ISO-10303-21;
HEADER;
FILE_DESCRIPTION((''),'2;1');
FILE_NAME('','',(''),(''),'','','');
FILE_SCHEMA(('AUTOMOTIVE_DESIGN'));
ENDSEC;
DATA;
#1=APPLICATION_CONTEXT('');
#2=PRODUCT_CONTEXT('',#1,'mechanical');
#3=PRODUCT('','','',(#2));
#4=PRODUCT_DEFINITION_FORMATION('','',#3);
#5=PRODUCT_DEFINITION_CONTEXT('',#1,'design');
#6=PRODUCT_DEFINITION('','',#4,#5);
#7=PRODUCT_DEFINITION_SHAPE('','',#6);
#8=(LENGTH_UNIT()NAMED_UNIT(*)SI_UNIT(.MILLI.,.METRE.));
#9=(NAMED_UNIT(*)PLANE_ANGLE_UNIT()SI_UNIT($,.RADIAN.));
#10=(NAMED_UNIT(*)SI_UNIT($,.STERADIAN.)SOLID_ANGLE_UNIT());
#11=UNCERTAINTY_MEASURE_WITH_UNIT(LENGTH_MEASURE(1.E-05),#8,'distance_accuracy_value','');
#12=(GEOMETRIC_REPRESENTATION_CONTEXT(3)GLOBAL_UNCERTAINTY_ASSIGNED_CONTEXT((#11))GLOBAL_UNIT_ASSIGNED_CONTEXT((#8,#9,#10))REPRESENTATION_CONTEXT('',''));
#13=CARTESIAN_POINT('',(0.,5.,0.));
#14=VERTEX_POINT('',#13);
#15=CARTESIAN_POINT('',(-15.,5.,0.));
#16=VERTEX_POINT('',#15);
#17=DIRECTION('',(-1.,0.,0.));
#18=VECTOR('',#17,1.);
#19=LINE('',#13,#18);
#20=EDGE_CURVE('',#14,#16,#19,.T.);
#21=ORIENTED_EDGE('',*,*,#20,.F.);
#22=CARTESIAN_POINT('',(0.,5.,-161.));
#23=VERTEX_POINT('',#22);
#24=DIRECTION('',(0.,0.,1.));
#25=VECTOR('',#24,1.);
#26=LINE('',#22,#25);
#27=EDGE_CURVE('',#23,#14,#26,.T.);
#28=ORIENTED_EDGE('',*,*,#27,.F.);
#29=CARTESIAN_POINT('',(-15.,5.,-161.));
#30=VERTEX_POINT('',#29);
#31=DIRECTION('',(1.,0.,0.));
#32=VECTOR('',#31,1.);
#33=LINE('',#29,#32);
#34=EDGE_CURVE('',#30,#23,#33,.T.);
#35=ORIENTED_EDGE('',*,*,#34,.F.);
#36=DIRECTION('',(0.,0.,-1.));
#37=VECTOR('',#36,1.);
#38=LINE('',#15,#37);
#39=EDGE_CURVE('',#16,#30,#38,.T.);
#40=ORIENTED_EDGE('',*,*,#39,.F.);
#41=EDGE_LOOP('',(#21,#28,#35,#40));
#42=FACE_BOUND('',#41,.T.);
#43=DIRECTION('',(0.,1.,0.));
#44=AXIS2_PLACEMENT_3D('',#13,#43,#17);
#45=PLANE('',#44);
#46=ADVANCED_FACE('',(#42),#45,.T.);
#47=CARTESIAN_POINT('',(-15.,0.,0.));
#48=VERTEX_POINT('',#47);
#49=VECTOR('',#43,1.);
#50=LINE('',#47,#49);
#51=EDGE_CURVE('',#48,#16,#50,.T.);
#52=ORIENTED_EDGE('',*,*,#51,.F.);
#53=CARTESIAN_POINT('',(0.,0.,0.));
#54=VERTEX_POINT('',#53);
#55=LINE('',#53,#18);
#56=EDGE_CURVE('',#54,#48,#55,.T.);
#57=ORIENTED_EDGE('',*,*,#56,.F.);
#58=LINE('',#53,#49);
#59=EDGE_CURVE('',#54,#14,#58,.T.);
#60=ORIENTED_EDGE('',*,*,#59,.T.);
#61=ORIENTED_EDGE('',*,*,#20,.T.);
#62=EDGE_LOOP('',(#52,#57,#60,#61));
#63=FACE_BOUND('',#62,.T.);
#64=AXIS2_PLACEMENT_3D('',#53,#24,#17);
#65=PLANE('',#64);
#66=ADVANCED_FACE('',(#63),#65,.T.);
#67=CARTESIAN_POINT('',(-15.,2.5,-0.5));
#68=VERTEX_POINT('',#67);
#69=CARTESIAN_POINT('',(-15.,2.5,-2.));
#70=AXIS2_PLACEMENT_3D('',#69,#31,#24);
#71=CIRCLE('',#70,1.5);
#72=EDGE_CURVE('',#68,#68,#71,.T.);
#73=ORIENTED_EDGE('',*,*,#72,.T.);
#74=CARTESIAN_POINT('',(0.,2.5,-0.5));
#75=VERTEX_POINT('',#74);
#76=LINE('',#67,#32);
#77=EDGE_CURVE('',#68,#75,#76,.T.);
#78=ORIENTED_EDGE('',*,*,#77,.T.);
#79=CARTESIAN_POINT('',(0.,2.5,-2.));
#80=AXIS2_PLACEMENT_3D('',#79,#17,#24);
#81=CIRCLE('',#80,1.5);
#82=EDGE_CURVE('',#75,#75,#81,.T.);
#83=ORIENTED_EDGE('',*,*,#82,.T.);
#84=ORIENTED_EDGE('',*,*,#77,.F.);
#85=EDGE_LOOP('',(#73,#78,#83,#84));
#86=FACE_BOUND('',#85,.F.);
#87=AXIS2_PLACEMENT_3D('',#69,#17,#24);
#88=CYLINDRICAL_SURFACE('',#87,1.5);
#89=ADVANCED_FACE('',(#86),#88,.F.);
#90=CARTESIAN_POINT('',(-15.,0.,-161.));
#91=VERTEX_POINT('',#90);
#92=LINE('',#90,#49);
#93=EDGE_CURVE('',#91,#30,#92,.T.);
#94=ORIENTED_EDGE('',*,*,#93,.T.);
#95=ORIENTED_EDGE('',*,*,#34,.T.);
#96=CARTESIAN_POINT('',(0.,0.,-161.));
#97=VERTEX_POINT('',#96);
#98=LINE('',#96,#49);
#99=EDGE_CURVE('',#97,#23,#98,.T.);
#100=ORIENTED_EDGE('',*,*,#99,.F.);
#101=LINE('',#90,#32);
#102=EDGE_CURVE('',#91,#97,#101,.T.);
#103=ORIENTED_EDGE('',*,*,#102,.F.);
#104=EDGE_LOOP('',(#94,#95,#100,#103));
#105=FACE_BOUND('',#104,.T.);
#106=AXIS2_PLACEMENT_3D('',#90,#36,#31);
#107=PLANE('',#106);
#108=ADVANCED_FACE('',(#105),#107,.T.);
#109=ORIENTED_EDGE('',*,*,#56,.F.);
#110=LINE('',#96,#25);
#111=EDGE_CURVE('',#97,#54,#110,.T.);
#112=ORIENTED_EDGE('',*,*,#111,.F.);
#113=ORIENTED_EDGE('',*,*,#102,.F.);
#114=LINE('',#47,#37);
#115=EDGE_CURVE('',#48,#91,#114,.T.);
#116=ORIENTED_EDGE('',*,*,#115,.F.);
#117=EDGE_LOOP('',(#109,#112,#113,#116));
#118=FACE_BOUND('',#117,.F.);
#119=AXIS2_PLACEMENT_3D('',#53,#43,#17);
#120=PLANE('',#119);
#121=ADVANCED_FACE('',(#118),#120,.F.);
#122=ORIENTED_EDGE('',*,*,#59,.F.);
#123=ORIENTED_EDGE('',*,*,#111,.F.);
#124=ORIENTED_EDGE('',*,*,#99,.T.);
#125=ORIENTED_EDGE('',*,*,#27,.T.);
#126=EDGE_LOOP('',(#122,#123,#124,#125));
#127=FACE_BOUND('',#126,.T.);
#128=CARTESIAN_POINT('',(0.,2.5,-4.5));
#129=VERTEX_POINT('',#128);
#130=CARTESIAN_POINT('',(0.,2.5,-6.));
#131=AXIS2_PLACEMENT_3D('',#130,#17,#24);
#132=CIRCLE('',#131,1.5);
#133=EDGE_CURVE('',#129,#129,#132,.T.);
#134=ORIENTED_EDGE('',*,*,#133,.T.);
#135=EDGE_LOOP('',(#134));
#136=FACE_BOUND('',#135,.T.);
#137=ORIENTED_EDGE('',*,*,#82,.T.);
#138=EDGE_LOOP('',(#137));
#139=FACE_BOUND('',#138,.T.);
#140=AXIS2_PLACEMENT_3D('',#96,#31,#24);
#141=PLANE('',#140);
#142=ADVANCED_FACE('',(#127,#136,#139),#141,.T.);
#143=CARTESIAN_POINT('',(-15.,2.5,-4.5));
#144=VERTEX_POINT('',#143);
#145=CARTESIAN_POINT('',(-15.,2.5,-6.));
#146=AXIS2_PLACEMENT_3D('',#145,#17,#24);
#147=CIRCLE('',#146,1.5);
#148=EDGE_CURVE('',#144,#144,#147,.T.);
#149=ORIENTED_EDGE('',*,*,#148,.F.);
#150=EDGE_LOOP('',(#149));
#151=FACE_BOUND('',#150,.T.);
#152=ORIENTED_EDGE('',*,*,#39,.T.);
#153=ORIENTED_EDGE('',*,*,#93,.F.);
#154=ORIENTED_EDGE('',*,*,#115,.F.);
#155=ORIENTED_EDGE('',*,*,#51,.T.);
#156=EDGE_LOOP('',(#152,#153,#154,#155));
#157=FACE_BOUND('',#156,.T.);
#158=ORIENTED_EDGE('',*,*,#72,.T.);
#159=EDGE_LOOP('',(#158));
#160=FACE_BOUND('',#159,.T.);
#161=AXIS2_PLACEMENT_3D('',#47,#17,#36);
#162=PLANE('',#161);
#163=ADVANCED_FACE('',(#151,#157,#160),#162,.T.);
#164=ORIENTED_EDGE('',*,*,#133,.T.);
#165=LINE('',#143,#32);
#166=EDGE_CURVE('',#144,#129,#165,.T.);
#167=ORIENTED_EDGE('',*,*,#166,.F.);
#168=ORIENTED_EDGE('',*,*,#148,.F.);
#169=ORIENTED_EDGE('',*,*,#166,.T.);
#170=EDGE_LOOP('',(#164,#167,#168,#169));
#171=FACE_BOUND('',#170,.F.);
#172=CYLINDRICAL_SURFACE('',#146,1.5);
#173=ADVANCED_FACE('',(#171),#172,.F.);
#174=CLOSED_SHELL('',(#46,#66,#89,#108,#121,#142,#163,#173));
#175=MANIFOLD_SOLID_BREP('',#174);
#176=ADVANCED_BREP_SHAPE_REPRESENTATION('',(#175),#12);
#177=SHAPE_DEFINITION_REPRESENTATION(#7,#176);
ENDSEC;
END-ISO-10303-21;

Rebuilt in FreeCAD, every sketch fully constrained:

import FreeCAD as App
import Part
import Sketcher
from FreeCAD import Vector

doc = App.newDocument("Part")
body = doc.addObject("PartDesign::Body", "Body")

# Sketch on XZ plane
sketch1 = body.newObject("Sketcher::SketchObject", "Sketch")
sketch1.AttachmentSupport = (doc.getObject("XZ_Plane"), [""])
sketch1.MapMode = "FlatFace"
sketch1.addGeometry(Part.LineSegment(Vector(-15, 0, 0), Vector(0, 0, 0)), False)
sketch1.addGeometry(Part.LineSegment(Vector(0, 0, 0), Vector(0, -161, 0)), False)
sketch1.addGeometry(Part.LineSegment(Vector(0, -161, 0), Vector(-15, -161, 0)), False)
sketch1.addGeometry(Part.LineSegment(Vector(-15, -161, 0), Vector(-15, 0, 0)), False)
sketch1.addConstraint(Sketcher.Constraint("Coincident", 0, 2, 1, 1))
sketch1.addConstraint(Sketcher.Constraint("Coincident", 1, 2, 2, 1))
sketch1.addConstraint(Sketcher.Constraint("Coincident", 2, 2, 3, 1))
sketch1.addConstraint(Sketcher.Constraint("Coincident", 3, 2, 0, 1))
sketch1.addConstraint(Sketcher.Constraint("Horizontal", 0))
sketch1.addConstraint(Sketcher.Constraint("Vertical", 1))
sketch1.addConstraint(Sketcher.Constraint("Horizontal", 2))
sketch1.addConstraint(Sketcher.Constraint("Vertical", 3))
sketch1.addConstraint(Sketcher.Constraint("Coincident", 0, 2, -1, 1))
sketch1.addConstraint(Sketcher.Constraint("DistanceX", 0, 1, 0, 2, 15.0))
sketch1.addConstraint(Sketcher.Constraint("DistanceY", 1, 2, 1, 1, 161.0))
pad1 = body.newObject("PartDesign::Pad", "Pad")
pad1.Profile = sketch1
pad1.Length = 5
pad1.Reversed = True

# Sketch on YZ plane
sketch2 = body.newObject("Sketcher::SketchObject", "Sketch001")
sketch2.AttachmentSupport = (doc.getObject("YZ_Plane"), [""])
sketch2.MapMode = "FlatFace"
sketch2.AttachmentOffset = App.Placement(Vector(0, 0, -15), App.Rotation())
sketch2.addGeometry(Part.Circle(Vector(2.5, -2, 0), Vector(0, 0, 1), 1.5), False)
sketch2.addGeometry(Part.Circle(Vector(2.5, -6, 0), Vector(0, 0, 1), 1.5), False)
sketch2.addConstraint(Sketcher.Constraint("Equal", 0, 1))
sketch2.addConstraint(Sketcher.Constraint("Vertical", 0, 3, 1, 3))
sketch2.addConstraint(Sketcher.Constraint("Diameter", 0, 3.0))
sketch2.addConstraint(Sketcher.Constraint("DistanceY", 0, 3, -1, 1, 2.0))
sketch2.addConstraint(Sketcher.Constraint("DistanceY", 1, 3, 0, 3, 4.0))
sketch2.addConstraint(Sketcher.Constraint("DistanceX", -1, 1, 0, 3, 2.5))
pocket1 = body.newObject("PartDesign::Pocket", "Pocket")
pocket1.Profile = sketch2
pocket1.Type = "ThroughAll"
pocket1.Reversed = True

doc.recompute()
